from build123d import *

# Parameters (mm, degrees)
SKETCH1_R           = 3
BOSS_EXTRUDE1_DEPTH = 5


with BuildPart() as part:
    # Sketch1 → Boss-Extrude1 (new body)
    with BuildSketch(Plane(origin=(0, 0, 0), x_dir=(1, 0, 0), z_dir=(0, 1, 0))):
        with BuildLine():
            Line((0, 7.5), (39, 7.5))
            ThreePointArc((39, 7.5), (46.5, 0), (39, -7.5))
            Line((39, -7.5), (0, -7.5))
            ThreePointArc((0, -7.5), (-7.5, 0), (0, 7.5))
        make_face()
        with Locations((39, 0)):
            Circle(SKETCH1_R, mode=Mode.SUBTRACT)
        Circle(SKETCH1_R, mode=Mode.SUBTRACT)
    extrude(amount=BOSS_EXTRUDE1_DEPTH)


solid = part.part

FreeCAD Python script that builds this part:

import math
import FreeCAD as App
import Part
import Sketcher

doc = App.newDocument("Part")
body = doc.addObject("PartDesign::Body", "Body")

# Sketch on XZ plane
sketch1 = doc.addObject("Sketcher::SketchObject", "Sketch")
body.addObject(sketch1)
sketch1.AttachmentSupport = (doc.XZ_Plane, [""])
sketch1.MapMode = "FlatFace"
sketch1.addGeometry([
    Part.LineSegment(App.Vector(39, -7.5, 0), App.Vector(0, -7.5, 0)),  # 0
    Part.ArcOfCircle(Part.Circle(App.Vector(0, 0, 0), App.Vector(0, 0, 1), 7.5), math.radians(90), math.radians(270)),  # 1
    Part.LineSegment(App.Vector(0, 7.5, 0), App.Vector(39, 7.5, 0)),  # 2
    Part.ArcOfCircle(Part.Circle(App.Vector(39, 0, 0), App.Vector(0, 0, 1), 7.5), math.radians(-90), math.radians(90)),  # 3
    Part.Circle(App.Vector(39, 0, 0), App.Vector(0, 0, 1), 3),  # 4
    Part.Circle(App.Vector(0, 0, 0), App.Vector(0, 0, 1), 3),  # 5
], False)
sketch1.addConstraint([
    Sketcher.Constraint("Tangent", 0, 2, 1, 2),
    Sketcher.Constraint("Tangent", 1, 1, 2, 1),
    Sketcher.Constraint("Tangent", 2, 2, 3, 2),
    Sketcher.Constraint("Tangent", 3, 1, 0, 1),
    Sketcher.Constraint("Horizontal", 0),
    Sketcher.Constraint("Horizontal", 2),
    Sketcher.Constraint("Coincident", 1, 3, -1, 1),
    Sketcher.Constraint("Coincident", 5, 3, -1, 1),
    Sketcher.Constraint("Coincident", 4, 3, 3, 3),
    Sketcher.Constraint("Equal", 4, 5),
    Sketcher.Constraint("Diameter", 4, 6.0),
    Sketcher.Constraint("Radius", 1, 7.5),
    Sketcher.Constraint("DistanceX", 0, 2, 0, 1, 39.0),
])
pad1 = doc.addObject("PartDesign::Pad", "Pad")
body.addObject(pad1)
pad1.Profile = sketch1
pad1.Length = 5
pad1.Reversed = True

doc.recompute()
